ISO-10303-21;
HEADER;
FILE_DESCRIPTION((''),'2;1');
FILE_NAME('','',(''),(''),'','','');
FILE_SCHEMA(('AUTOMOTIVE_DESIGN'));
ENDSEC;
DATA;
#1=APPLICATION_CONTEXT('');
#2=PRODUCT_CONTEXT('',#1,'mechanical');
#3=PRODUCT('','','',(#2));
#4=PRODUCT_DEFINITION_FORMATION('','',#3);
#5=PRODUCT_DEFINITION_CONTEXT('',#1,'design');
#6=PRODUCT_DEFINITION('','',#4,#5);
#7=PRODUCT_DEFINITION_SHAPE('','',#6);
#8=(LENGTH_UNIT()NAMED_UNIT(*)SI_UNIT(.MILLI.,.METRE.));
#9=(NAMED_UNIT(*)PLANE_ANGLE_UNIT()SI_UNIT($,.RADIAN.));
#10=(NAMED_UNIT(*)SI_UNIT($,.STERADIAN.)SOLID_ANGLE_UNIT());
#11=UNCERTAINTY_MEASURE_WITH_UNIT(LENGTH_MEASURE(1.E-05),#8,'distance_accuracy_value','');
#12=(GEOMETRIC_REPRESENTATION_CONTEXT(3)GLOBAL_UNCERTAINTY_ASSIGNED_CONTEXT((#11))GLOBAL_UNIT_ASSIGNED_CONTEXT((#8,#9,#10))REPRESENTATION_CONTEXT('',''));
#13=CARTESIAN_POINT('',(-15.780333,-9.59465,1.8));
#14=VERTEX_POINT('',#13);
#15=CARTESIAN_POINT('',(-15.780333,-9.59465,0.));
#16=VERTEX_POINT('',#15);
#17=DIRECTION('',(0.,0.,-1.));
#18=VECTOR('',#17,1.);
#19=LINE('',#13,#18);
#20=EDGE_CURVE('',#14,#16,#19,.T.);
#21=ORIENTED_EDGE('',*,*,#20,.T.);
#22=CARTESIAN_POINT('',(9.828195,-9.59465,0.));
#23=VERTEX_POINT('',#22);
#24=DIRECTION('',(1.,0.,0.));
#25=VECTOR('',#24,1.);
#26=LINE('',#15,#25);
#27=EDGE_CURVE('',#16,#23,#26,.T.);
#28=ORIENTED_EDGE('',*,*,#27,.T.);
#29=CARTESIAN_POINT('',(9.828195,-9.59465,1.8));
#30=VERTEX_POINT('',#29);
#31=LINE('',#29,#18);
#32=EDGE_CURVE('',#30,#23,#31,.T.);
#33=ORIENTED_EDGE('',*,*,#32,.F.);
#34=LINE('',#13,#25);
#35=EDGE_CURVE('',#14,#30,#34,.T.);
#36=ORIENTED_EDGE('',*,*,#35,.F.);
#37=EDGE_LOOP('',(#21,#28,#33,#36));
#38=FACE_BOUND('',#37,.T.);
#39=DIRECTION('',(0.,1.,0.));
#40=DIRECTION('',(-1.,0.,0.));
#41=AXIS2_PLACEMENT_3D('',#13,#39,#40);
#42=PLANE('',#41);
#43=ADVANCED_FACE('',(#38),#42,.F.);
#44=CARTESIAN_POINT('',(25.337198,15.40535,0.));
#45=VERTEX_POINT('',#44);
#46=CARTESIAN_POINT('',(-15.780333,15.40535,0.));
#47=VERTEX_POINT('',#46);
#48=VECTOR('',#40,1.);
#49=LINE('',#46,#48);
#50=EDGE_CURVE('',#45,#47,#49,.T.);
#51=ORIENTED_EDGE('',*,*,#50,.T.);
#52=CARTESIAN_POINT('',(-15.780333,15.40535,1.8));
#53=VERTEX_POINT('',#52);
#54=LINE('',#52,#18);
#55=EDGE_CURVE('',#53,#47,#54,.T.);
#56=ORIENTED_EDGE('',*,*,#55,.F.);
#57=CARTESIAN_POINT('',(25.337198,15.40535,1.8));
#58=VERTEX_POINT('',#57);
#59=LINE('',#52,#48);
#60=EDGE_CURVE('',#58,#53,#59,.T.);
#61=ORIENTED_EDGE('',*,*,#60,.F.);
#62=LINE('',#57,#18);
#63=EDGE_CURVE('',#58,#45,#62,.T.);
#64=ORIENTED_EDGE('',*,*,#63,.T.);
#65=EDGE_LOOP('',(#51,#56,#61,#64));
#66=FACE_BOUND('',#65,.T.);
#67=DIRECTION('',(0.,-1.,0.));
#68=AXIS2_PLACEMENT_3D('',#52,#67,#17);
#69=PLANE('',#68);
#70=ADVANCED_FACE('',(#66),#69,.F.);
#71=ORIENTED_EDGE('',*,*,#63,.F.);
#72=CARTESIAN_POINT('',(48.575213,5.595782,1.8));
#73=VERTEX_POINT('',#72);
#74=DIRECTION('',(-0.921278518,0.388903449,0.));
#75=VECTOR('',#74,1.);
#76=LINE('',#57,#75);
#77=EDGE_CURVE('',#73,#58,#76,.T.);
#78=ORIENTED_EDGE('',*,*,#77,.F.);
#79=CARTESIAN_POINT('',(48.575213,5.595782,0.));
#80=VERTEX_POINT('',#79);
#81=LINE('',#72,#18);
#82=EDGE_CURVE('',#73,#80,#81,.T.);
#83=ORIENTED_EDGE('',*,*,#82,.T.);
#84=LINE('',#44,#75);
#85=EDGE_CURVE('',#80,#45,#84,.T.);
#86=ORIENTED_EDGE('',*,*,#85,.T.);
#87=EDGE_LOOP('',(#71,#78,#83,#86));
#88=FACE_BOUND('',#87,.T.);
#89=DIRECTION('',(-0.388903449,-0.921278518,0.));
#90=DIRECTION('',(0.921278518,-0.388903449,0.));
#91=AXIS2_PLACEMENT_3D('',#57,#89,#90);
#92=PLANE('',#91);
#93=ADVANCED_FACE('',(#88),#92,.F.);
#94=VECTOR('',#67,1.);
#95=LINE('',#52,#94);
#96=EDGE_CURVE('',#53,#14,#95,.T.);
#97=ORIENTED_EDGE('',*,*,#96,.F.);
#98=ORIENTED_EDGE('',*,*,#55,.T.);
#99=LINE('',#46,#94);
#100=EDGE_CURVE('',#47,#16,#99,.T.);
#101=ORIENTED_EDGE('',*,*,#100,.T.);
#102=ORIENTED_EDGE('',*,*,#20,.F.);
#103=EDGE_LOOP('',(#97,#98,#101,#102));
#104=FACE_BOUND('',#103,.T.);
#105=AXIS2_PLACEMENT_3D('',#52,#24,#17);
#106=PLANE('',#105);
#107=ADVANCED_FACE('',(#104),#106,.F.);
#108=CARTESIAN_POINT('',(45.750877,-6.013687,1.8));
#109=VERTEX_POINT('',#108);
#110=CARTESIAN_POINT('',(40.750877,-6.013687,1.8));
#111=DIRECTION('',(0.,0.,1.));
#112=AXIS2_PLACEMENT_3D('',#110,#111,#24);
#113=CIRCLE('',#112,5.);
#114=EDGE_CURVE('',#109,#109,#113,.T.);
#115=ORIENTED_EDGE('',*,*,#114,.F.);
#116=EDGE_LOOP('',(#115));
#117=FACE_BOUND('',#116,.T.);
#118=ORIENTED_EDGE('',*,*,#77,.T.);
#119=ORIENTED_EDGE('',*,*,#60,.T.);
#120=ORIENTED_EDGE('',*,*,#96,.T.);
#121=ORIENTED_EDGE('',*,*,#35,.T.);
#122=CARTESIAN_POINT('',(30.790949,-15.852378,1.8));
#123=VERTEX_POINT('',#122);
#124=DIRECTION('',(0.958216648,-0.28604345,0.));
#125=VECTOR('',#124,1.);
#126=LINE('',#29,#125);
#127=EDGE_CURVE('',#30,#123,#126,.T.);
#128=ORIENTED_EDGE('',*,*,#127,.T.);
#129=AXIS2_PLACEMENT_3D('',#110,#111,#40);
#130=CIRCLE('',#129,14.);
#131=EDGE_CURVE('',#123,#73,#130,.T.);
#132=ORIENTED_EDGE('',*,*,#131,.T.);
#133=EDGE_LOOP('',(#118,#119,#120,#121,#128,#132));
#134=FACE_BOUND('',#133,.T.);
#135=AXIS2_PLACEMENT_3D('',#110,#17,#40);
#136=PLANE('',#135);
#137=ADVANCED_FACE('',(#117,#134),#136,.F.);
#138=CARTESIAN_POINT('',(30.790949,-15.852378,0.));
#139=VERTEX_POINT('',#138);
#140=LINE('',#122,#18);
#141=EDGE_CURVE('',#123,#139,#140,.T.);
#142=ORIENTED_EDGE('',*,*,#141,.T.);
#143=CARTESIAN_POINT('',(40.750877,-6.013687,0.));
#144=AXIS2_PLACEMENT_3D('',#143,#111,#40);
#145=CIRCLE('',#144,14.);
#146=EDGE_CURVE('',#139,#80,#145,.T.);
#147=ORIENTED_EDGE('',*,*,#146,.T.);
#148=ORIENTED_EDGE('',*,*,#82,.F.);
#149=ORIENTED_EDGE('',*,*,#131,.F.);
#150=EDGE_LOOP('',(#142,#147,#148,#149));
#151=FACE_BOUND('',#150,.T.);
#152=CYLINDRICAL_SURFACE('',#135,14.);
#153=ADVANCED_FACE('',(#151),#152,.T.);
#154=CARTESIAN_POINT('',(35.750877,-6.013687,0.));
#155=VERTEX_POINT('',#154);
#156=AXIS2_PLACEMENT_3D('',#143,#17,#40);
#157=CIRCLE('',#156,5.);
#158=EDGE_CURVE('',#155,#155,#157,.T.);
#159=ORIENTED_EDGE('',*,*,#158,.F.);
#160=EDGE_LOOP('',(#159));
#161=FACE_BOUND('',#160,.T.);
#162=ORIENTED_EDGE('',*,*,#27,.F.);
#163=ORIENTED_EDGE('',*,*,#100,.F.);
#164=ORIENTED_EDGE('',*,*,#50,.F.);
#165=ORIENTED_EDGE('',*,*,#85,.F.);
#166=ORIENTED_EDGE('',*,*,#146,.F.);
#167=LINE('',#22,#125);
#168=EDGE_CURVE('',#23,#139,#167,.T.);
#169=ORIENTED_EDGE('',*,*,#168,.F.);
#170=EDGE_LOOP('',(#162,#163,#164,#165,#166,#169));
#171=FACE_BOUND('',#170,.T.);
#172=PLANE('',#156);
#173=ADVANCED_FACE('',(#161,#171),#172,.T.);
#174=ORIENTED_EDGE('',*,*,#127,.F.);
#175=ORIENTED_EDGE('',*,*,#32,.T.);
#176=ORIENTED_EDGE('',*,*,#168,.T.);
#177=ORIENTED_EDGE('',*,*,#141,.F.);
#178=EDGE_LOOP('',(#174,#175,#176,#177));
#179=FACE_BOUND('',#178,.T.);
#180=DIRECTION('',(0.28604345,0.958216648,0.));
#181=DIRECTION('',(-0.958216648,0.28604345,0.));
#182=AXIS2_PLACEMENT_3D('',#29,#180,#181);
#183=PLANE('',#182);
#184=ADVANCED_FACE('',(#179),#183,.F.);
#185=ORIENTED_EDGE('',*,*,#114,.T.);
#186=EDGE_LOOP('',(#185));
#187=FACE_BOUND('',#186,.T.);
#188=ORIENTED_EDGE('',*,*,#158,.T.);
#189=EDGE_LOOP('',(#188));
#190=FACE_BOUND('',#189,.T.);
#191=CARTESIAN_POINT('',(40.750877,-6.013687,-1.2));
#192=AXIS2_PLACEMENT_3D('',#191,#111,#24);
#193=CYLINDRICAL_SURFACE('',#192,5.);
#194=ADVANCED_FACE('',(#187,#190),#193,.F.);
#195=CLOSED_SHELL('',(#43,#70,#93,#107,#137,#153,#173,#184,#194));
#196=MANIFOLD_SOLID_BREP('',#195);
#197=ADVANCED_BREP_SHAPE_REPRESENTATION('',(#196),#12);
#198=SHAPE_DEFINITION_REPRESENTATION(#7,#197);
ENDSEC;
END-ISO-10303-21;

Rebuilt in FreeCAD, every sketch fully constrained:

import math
import FreeCAD as App
import Part
import Sketcher

V = App.Vector
Q = App.Units.Quantity

doc = App.newDocument("Part")
body = doc.addObject("PartDesign::Body", "Body")

# Sketch on XY plane
sketch1 = body.newObject("Sketcher::SketchObject", "Sketch")
sketch1.AttachmentSupport = (doc.getObject("XY_Plane"), [""])
sketch1.MapMode = "FlatFace"
sketch1.addGeometry([
    Part.LineSegment(V(25, 15, 0), V(-16, 15, 0)),  # 0
    Part.LineSegment(V(-16, 15, 0), V(-16, -10, 0)),  # 1
    Part.LineSegment(V(-16, -10, 0), V(10, -10, 0)),  # 2
    Part.LineSegment(V(10, -10, 0), V(31, -16, 0)),  # 3
    Part.ArcOfCircle(Part.Circle(V(41, -6, 0), V(0, 0, 1), 14), math.radians(-135), math.radians(56)),  # 4
    Part.LineSegment(V(49, 6, 0), V(25, 15, 0)),  # 5
], False)
sketch1.addConstraint([
    Sketcher.Constraint("Coincident", 0, 2, 1, 1),
    Sketcher.Constraint("Coincident", 1, 2, 2, 1),
    Sketcher.Constraint("Coincident", 2, 2, 3, 1),
    Sketcher.Constraint("Coincident", 3, 2, 4, 1),
    Sketcher.Constraint("Coincident", 4, 2, 5, 1),
    Sketcher.Constraint("Coincident", 5, 2, 0, 1),
    Sketcher.Constraint("Horizontal", 0),
    Sketcher.Constraint("Vertical", 1),
    Sketcher.Constraint("Horizontal", 2),
    Sketcher.Constraint("Radius", 4, Q("14 mm")),
    Sketcher.Constraint("DistanceY", 1, 2, 1, 1, Q("25 mm")),
    Sketcher.Constraint("DistanceX", 0, 2, 0, 1, Q("41.117531 mm")),
    Sketcher.Constraint("Distance", 5, Q("25.223659 mm")),
    Sketcher.Constraint("DistanceX", 2, 1, 2, 2, Q("25.608528 mm")),
    Sketcher.Constraint("DistanceY", -1, 1, 0, 2, Q("15.40535 mm")),
    Sketcher.Constraint("DistanceX", -1, 1, 3, 2, Q("30.790949 mm")),
    Sketcher.Constraint("DistanceY", -1, 1, 4, 2, Q("5.595782 mm")),
    Sketcher.Constraint("DistanceX", 0, 2, 4, 3, Q("56.53121 mm")),
    Sketcher.Constraint("DistanceY", 3, 2, 4, 3, Q("9.838691 mm")),
])
pad1 = body.newObject("PartDesign::Pad", "Pad")
pad1.Profile = sketch1
pad1.Length = 1.8

# Sketch on XY plane
sketch2 = body.newObject("Sketcher::SketchObject", "Sketch001")
sketch2.AttachmentSupport = (doc.getObject("XY_Plane"), [""])
sketch2.MapMode = "FlatFace"
sketch2.AttachmentOffset = App.Placement(V(0, 0, 1.8), App.Rotation())
sketch2.addGeometry(Part.Circle(V(41, -6, 0), V(0, 0, 1), 5), False)
sketch2.addConstraint([
    Sketcher.Constraint("Diameter", 0, Q("10 mm")),
    Sketcher.Constraint("DistanceX", -1, 1, 0, 3, Q("40.750877 mm")),
    Sketcher.Constraint("DistanceY", 0, 3, -1, 1, Q("6.013687 mm")),
])
pocket1 = body.newObject("PartDesign::Pocket", "Pocket")
pocket1.Profile = sketch2
pocket1.Length = 3

doc.recompute()
